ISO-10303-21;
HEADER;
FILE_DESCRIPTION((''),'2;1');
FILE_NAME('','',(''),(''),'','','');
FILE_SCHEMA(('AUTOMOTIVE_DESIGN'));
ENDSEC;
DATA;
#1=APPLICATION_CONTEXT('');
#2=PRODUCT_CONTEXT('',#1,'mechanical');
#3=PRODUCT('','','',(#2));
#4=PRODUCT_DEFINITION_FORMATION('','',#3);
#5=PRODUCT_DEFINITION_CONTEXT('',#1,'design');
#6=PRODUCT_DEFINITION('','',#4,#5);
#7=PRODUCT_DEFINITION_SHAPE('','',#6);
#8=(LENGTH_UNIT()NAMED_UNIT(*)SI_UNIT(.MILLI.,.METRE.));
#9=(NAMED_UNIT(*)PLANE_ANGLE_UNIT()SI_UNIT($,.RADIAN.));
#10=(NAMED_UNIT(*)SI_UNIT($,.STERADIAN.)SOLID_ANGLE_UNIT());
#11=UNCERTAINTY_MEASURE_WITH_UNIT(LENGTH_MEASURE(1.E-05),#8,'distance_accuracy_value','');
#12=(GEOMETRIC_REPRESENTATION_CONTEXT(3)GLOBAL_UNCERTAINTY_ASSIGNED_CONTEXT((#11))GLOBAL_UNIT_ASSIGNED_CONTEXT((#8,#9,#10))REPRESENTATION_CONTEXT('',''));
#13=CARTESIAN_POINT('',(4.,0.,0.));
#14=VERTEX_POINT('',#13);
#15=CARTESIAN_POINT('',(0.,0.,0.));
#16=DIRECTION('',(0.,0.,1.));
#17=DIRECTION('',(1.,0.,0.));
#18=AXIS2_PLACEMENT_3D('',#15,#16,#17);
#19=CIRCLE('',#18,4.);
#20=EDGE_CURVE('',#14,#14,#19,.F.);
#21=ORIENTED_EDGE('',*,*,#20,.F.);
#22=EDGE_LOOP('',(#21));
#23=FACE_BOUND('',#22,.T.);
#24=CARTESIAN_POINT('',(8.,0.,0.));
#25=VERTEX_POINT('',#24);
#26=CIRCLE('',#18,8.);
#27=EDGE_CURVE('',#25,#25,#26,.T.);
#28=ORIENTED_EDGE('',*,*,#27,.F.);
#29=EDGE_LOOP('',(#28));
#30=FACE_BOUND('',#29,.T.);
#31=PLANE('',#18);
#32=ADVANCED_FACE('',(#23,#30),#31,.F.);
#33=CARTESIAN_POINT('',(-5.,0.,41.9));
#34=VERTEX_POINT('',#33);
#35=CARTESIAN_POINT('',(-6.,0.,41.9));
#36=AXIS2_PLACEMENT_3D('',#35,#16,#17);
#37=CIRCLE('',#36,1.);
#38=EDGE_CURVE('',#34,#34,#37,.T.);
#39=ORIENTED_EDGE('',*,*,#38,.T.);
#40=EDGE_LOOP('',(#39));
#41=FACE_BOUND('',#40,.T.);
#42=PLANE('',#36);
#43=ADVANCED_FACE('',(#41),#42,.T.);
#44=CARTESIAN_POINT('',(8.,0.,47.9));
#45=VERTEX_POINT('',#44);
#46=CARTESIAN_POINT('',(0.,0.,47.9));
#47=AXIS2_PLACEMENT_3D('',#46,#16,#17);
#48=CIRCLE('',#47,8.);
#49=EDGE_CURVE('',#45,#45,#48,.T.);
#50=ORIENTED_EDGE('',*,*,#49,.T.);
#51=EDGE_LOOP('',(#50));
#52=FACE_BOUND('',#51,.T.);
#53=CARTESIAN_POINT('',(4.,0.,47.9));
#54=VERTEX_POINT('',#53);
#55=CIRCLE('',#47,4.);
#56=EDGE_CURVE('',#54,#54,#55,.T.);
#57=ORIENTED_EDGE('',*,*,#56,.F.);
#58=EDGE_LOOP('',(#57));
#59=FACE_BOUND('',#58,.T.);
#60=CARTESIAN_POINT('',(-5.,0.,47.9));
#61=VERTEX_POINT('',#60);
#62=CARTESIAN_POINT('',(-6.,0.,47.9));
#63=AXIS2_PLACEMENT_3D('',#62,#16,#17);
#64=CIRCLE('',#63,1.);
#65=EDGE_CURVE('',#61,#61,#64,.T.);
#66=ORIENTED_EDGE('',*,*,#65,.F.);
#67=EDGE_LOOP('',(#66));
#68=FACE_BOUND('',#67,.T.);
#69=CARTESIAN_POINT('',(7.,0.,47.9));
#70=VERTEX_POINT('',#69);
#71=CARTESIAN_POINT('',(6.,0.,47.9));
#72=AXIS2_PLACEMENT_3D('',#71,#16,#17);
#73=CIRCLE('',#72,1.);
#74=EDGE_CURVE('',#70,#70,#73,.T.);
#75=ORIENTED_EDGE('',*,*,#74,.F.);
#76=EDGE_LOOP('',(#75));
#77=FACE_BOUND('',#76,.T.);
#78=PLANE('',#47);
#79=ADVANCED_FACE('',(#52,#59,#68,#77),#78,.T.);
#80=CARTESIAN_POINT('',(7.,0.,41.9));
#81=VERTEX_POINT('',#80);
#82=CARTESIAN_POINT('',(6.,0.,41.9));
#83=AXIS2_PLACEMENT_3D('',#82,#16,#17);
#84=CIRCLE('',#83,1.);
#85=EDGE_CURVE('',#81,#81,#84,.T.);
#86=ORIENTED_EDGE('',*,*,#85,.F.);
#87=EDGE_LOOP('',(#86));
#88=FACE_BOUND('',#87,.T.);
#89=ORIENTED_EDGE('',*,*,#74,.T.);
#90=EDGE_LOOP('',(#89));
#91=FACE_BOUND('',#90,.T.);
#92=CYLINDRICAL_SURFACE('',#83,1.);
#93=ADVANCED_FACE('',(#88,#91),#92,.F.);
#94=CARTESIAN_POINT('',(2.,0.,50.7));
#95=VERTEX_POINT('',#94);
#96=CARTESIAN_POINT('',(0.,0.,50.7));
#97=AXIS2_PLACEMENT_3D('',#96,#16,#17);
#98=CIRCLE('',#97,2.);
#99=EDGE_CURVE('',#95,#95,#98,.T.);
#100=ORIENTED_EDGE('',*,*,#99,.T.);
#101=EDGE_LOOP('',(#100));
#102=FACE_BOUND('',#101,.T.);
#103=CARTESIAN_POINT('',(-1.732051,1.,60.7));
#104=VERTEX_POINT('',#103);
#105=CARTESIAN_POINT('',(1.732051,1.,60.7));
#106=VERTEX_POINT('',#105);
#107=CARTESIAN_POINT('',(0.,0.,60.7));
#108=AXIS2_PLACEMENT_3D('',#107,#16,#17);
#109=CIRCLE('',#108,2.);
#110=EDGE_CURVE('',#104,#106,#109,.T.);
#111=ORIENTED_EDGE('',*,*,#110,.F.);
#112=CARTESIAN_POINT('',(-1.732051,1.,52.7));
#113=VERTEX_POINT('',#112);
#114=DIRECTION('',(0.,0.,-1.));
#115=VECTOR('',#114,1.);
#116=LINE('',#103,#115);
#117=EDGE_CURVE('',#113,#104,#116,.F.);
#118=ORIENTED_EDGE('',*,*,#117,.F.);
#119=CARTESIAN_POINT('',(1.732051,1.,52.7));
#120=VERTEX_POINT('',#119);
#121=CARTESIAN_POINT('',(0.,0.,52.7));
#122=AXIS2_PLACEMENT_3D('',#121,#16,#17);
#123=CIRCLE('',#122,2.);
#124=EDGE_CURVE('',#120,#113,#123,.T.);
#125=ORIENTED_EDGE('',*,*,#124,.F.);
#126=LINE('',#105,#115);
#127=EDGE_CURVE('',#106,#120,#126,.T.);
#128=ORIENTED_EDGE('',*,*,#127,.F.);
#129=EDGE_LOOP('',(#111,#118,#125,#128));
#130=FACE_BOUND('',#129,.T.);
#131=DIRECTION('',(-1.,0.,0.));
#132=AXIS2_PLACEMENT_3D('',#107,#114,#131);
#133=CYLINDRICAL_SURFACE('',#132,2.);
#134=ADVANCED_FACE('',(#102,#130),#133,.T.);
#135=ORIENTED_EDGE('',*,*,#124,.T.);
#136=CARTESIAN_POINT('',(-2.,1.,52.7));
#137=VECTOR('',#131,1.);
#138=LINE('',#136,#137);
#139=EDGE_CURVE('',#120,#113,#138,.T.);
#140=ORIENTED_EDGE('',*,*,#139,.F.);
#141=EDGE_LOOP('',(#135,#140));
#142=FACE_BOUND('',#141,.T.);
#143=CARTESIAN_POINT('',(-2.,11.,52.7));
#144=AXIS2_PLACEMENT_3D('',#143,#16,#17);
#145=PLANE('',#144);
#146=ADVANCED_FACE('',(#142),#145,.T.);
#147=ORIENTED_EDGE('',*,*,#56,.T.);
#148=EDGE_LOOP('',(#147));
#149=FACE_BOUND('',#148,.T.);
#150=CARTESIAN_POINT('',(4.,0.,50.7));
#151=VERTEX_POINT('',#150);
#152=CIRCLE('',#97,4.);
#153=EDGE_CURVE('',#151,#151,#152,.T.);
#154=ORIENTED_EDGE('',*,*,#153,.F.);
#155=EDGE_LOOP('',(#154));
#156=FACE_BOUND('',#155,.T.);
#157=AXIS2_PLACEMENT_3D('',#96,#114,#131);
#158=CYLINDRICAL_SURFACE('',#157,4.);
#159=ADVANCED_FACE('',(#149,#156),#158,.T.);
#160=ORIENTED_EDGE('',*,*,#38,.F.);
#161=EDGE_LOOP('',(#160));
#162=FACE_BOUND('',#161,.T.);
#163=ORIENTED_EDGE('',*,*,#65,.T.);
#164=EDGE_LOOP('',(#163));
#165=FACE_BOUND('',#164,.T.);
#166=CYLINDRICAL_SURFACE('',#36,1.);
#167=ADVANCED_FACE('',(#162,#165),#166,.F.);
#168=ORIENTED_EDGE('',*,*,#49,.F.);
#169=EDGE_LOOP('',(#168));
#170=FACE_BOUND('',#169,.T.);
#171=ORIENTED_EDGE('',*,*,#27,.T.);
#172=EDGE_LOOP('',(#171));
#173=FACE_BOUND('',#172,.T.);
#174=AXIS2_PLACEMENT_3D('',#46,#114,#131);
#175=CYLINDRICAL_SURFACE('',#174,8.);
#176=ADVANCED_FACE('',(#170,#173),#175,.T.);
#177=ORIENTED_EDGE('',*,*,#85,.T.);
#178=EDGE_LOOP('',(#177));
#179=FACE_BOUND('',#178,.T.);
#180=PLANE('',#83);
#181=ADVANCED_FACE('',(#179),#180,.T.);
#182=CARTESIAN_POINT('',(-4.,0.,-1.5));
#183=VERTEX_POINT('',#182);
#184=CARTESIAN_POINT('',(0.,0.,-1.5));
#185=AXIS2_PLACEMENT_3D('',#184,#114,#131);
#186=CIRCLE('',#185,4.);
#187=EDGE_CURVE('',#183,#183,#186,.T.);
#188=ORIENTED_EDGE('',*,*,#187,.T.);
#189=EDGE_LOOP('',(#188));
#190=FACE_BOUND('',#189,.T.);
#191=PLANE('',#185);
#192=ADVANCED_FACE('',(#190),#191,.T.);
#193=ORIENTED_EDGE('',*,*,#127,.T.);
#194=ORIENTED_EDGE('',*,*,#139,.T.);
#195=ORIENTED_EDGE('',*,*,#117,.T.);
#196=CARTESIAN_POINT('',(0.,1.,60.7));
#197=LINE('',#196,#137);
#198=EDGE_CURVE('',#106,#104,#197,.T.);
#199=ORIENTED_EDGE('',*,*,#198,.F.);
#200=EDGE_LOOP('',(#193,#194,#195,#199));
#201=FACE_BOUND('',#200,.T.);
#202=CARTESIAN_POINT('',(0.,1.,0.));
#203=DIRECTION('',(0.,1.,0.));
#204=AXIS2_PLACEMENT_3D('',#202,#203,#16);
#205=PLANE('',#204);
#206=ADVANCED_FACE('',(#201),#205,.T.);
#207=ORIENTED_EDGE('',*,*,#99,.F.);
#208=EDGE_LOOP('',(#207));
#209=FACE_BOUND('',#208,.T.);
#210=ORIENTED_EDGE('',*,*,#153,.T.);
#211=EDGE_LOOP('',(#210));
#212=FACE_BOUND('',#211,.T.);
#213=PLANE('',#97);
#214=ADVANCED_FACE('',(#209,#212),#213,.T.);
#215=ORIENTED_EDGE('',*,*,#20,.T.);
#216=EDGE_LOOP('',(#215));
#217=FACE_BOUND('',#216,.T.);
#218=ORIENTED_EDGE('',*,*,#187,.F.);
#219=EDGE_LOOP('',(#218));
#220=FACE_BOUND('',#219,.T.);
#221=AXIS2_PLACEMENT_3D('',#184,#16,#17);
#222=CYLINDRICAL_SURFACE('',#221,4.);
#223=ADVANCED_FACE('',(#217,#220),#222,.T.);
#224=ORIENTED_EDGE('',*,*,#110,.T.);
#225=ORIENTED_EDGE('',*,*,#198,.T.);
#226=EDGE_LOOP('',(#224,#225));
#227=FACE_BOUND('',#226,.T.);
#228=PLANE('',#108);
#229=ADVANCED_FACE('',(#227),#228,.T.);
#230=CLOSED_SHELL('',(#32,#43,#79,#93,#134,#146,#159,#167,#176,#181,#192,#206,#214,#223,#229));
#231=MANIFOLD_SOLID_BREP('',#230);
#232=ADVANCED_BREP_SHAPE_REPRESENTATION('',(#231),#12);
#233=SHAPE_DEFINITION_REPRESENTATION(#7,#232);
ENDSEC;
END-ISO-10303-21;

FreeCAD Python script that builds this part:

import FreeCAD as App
import Part
import Sketcher

V = App.Vector
Q = App.Units.Quantity

doc = App.newDocument("Part")
body = doc.addObject("PartDesign::Body", "Body")

sketch1 = body.newObject("Sketcher::SketchObject", "Sketch")
sketch1.AttachmentSupport = (doc.getObject("XY_Plane"), [""])
sketch1.MapMode = "FlatFace"
sketch1.addGeometry(Part.Circle(V(0, 0, 0), V(0, 0, 1), 8), False)
sketch1.addConstraint([
    Sketcher.Constraint("Coincident", 0, 3, -1, 1),
    Sketcher.Constraint("Diameter", 0, Q("16 mm")),
])
pad1 = body.newObject("PartDesign::Pad", "Pad")
pad1.Profile = sketch1
pad1.Length = 47.9

sketch2 = body.newObject("Sketcher::SketchObject", "Sketch001")
sketch2.AttachmentSupport = (doc.getObject("XY_Plane"), [""])
sketch2.MapMode = "FlatFace"
sketch2.AttachmentOffset = App.Placement(V(0, 0, 47.9), App.Rotation())
sketch2.addGeometry(Part.Circle(V(0, 0, 0), V(0, 0, 1), 4), False)
sketch2.addConstraint([
    Sketcher.Constraint("Coincident", 0, 3, -1, 1),
    Sketcher.Constraint("Diameter", 0, Q("8 mm")),
])
pad2 = body.newObject("PartDesign::Pad", "Pad001")
pad2.Profile = sketch2
pad2.Length = 2.8

sketch3 = body.newObject("Sketcher::SketchObject", "Sketch002")
sketch3.AttachmentSupport = (doc.getObject("XY_Plane"), [""])
sketch3.MapMode = "FlatFace"
sketch3.AttachmentOffset = App.Placement(V(0, 0, 50.7), App.Rotation())
sketch3.addGeometry(Part.Circle(V(0, 0, 0), V(0, 0, 1), 2), False)
sketch3.addConstraint([
    Sketcher.Constraint("Coincident", 0, 3, -1, 1),
    Sketcher.Constraint("Diameter", 0, Q("4 mm")),
])
pad3 = body.newObject("PartDesign::Pad", "Pad002")
pad3.Profile = sketch3
pad3.Length = 10

sketch4 = body.newObject("Sketcher::SketchObject", "Sketch003")
sketch4.AttachmentSupport = (doc.getObject("XZ_Plane"), [""])
sketch4.MapMode = "FlatFace"
sketch4.AttachmentOffset = App.Placement(V(0, 0, -1), App.Rotation())
sketch4.addGeometry([
    Part.LineSegment(V(-2, 52.7, 0), V(-2, 60.7, 0)),
    Part.LineSegment(V(-2, 60.7, 0), V(2, 60.7, 0)),
    Part.LineSegment(V(2, 60.7, 0), V(2, 52.7, 0)),
    Part.LineSegment(V(2, 52.7, 0), V(-2, 52.7, 0)),
], False)
sketch4.addConstraint([
    Sketcher.Constraint("Coincident", 0, 2, 1, 1),
    Sketcher.Constraint("Coincident", 1, 2, 2, 1),
    Sketcher.Constraint("Coincident", 2, 2, 3, 1),
    Sketcher.Constraint("Coincident", 3, 2, 0, 1),
    Sketcher.Constraint("Vertical", 0),
    Sketcher.Constraint("Horizontal", 1),
    Sketcher.Constraint("Vertical", 2),
    Sketcher.Constraint("Horizontal", 3),
    Sketcher.Constraint("DistanceX", 1, 1, 1, 2, Q("4 mm")),
    Sketcher.Constraint("DistanceY", 0, 1, 0, 2, Q("8 mm")),
    Sketcher.Constraint("DistanceX", 0, 2, -1, 1, Q("2 mm")),
    Sketcher.Constraint("DistanceY", -1, 1, 0, 2, Q("60.7 mm")),
])
pocket1 = body.newObject("PartDesign::Pocket", "Pocket")
pocket1.Profile = sketch4
pocket1.Length = 10

sketch5 = body.newObject("Sketcher::SketchObject", "Sketch004")
sketch5.AttachmentSupport = (doc.getObject("XY_Plane"), [""])
sketch5.MapMode = "FlatFace"
sketch5.AttachmentOffset = App.Placement(V(0, 0, -1.5), App.Rotation())
sketch5.addGeometry(Part.Circle(V(0, 0, 0), V(0, 0, 1), 4), False)
sketch5.addConstraint([
    Sketcher.Constraint("Coincident", 0, 3, -1, 1),
    Sketcher.Constraint("Diameter", 0, Q("8 mm")),
])
pad4 = body.newObject("PartDesign::Pad", "Pad003")
pad4.Profile = sketch5
pad4.Length = 1.5

sketch6 = body.newObject("Sketcher::SketchObject", "Sketch005")
sketch6.AttachmentSupport = (doc.getObject("XY_Plane"), [""])
sketch6.MapMode = "FlatFace"
sketch6.AttachmentOffset = App.Placement(V(0, 0, 47.9), App.Rotation())
sketch6.addGeometry([
    Part.Circle(V(6, 0, 0), V(0, 0, 1), 1),
    Part.Circle(V(-6, 0, 0), V(0, 0, 1), 1),
], False)
sketch6.addConstraint([
    Sketcher.Constraint("Equal", 0, 1),
    Sketcher.Constraint("Symmetric", 0, 3, 1, 3, -1, 1),
    Sketcher.Constraint("PointOnObject", 0, 3, -1),
    Sketcher.Constraint("Diameter", 0, Q("2 mm")),
    Sketcher.Constraint("DistanceX", -1, 1, 0, 3, Q("6 mm")),
])
pocket2 = body.newObject("PartDesign::Pocket", "Pocket001")
pocket2.Profile = sketch6
pocket2.Length = 6

doc.recompute()
